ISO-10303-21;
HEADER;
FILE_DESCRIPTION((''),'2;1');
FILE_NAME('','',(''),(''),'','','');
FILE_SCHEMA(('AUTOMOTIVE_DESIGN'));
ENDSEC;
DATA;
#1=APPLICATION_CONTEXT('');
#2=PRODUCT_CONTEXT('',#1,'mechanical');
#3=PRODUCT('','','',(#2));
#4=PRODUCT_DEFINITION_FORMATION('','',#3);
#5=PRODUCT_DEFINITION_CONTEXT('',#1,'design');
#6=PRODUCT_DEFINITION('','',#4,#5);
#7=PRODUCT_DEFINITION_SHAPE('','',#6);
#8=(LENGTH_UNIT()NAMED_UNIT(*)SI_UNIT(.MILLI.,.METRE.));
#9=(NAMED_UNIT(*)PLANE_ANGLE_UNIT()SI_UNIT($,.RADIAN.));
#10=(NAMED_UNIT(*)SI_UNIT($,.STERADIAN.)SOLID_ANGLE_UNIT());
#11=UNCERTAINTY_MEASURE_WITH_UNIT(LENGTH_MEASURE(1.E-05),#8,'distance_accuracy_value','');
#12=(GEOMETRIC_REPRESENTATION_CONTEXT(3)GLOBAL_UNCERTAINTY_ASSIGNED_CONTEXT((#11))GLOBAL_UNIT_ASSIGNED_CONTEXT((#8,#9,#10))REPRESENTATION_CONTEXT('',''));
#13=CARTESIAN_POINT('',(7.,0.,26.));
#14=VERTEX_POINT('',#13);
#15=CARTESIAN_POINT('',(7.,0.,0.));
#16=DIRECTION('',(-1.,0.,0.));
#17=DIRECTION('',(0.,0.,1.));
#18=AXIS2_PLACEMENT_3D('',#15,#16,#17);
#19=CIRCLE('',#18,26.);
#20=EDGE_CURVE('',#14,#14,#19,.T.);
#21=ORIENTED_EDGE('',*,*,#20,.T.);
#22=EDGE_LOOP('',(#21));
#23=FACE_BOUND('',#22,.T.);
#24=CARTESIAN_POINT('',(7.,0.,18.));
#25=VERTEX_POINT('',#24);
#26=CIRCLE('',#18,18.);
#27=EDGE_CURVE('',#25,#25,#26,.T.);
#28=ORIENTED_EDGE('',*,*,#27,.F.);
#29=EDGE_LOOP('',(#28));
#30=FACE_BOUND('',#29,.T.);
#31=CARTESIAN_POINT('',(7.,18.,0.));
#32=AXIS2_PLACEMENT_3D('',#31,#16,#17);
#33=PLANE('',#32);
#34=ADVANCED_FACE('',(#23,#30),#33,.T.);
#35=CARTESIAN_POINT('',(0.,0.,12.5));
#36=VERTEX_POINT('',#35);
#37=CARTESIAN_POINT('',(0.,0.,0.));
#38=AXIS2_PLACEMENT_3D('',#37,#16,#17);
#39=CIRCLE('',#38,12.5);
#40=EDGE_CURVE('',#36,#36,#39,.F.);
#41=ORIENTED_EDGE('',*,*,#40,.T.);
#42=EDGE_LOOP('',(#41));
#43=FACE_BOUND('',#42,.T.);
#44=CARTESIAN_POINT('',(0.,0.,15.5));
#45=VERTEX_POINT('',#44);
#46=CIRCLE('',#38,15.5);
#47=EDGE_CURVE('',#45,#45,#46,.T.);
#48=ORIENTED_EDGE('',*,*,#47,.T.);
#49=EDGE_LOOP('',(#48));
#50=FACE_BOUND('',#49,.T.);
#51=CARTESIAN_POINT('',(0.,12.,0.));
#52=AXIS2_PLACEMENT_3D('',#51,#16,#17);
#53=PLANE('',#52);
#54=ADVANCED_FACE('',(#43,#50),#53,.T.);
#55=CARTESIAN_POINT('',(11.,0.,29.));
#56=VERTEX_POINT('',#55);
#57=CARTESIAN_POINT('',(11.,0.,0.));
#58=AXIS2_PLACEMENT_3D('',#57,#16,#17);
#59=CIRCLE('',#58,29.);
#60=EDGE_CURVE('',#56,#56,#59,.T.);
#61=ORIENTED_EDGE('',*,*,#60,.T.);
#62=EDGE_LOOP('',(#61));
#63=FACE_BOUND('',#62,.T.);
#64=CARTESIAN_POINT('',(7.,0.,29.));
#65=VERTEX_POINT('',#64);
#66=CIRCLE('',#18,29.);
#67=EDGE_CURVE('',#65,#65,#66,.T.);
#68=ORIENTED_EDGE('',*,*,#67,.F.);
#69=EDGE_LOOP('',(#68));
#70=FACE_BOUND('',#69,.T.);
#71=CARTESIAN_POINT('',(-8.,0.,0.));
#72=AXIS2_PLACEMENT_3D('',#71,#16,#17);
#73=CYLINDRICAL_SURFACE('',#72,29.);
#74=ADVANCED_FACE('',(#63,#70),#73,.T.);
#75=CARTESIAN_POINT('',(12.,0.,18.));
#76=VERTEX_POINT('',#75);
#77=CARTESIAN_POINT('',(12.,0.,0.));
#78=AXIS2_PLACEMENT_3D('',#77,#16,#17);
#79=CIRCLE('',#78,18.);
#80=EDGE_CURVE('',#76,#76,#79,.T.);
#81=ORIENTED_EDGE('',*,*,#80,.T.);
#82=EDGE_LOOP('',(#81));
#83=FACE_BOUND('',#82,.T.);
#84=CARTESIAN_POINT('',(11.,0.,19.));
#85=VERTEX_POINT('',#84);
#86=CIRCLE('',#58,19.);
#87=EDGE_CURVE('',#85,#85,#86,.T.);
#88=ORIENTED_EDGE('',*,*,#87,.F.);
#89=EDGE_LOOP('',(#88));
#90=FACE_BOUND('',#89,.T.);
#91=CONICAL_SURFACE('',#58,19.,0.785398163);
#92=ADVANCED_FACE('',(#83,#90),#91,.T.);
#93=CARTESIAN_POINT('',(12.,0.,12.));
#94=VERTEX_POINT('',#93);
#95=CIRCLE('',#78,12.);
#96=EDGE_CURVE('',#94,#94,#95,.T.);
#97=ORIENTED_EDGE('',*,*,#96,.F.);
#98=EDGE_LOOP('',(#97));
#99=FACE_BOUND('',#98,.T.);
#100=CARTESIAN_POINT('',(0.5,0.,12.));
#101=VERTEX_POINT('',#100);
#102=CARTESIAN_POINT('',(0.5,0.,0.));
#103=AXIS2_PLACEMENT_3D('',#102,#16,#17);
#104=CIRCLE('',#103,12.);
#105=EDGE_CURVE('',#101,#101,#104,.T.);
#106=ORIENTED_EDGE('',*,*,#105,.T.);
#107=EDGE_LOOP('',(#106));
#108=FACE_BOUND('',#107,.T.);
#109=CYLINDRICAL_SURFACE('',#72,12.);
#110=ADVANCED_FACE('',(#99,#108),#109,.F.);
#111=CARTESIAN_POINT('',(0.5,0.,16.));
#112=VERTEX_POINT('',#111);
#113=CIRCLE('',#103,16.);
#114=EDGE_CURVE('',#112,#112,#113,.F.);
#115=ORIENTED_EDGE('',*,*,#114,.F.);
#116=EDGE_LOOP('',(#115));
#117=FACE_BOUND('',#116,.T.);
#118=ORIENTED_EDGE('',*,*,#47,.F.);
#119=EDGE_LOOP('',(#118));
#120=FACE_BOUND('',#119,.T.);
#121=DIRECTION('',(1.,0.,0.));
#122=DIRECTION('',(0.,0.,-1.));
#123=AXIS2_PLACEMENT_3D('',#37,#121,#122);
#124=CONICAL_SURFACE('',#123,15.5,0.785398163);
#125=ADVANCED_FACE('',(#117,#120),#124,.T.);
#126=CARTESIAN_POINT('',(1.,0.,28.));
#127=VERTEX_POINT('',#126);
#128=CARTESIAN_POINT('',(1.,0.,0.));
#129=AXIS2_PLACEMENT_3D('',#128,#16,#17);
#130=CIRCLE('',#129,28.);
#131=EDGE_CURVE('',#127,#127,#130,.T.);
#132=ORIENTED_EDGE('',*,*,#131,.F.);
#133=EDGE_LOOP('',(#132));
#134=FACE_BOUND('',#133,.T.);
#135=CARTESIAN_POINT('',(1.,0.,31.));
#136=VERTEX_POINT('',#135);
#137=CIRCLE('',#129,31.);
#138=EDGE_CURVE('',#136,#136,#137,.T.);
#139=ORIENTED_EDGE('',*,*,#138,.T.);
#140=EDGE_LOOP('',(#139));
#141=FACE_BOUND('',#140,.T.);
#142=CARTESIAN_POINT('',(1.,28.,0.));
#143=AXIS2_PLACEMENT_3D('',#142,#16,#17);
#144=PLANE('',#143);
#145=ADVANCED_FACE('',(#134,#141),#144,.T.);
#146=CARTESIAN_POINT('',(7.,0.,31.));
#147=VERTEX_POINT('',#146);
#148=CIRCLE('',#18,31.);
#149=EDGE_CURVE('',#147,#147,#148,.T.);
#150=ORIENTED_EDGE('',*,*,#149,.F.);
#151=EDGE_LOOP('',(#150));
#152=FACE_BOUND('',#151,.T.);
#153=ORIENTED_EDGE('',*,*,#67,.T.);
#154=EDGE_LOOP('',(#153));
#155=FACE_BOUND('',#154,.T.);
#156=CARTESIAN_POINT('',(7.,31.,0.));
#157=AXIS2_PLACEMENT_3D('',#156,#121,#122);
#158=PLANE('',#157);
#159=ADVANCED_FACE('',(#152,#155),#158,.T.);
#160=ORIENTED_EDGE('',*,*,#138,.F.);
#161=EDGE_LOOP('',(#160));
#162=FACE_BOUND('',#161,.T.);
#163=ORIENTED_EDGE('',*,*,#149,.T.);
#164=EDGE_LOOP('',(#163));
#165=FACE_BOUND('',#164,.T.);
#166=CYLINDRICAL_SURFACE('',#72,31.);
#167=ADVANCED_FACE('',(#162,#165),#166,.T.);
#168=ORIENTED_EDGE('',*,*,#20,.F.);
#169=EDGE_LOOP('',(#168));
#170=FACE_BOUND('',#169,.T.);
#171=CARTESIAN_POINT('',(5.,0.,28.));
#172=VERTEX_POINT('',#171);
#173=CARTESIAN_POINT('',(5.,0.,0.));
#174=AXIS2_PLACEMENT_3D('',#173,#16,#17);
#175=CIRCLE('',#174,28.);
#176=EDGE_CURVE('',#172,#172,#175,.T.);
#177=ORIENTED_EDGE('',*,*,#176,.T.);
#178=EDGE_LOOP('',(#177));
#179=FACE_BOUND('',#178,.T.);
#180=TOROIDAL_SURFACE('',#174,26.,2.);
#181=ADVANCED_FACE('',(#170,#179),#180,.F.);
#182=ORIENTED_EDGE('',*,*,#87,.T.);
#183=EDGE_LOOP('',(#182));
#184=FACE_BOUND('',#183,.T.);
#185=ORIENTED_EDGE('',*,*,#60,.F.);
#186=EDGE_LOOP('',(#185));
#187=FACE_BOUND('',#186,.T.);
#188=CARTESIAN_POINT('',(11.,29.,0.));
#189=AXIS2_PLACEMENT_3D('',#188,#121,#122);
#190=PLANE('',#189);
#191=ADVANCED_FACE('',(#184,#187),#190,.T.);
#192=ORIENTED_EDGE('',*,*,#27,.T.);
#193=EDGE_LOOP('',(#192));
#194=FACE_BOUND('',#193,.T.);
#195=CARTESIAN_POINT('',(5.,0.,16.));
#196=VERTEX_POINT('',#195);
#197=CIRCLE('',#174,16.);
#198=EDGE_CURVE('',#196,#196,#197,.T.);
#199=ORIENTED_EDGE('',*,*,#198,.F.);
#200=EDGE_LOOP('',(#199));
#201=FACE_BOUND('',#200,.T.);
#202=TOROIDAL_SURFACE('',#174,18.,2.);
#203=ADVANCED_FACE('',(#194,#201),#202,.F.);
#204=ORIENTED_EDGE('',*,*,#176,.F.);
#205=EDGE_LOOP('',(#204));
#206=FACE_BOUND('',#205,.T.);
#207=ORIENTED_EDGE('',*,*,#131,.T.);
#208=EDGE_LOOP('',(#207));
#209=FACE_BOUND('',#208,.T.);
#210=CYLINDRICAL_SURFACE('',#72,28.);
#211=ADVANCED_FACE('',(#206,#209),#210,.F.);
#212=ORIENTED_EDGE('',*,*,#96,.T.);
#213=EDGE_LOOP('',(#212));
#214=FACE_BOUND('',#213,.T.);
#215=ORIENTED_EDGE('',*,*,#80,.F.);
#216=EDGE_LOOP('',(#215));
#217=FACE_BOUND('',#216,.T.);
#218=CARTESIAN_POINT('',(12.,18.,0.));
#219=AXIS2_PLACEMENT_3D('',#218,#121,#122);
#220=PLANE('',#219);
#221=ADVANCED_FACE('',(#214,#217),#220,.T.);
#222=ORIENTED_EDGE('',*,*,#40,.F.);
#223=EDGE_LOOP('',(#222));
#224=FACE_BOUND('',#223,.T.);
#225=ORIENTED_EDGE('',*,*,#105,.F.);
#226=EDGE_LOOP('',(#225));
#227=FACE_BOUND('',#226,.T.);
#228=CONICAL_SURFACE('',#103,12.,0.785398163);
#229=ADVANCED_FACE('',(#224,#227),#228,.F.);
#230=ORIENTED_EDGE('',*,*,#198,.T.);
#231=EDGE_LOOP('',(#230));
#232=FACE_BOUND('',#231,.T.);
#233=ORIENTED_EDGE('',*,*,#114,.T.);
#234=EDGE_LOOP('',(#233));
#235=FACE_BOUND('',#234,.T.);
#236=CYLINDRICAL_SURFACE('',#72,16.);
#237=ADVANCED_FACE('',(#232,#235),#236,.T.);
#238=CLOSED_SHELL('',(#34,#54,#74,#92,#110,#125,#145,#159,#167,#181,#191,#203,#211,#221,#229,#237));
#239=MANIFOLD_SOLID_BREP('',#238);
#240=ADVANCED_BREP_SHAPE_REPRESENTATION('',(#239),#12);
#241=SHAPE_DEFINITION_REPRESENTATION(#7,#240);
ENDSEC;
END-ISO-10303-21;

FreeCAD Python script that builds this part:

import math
import FreeCAD as App
import Part
import Sketcher

V = App.Vector


def edges_at(feature, points):
    """Names of the edges that pass closest to the given points."""
    edges = feature.Shape.Edges
    near = lambda p: min(range(len(edges)), key=lambda i: edges[i].distToShape(Part.Vertex(*p))[0])
    return sorted({f"Edge{near(p) + 1}" for p in points})

doc = App.newDocument("Part")
body = doc.addObject("PartDesign::Body", "Body")

# Sketch on XY plane
sketch1 = doc.addObject("Sketcher::SketchObject", "Sketch")
body.addObject(sketch1)
sketch1.AttachmentSupport = (doc.XY_Plane, [""])
sketch1.MapMode = "FlatFace"
sketch1.addGeometry([
    Part.LineSegment(V(0, 16, 0), V(0, 12, 0)),  # 0
    Part.LineSegment(V(0, 12, 0), V(12, 12, 0)),  # 1
    Part.LineSegment(V(12, 12, 0), V(12, 18, 0)),  # 2
    Part.LineSegment(V(12, 18, 0), V(11, 19, 0)),  # 3
    Part.LineSegment(V(11, 19, 0), V(11, 29, 0)),  # 4
    Part.LineSegment(V(11, 29, 0), V(7, 29, 0)),  # 5
    Part.LineSegment(V(7, 29, 0), V(7, 31, 0)),  # 6
    Part.LineSegment(V(7, 31, 0), V(1, 31, 0)),  # 7
    Part.LineSegment(V(1, 31, 0), V(1, 28, 0)),  # 8
    Part.LineSegment(V(1, 28, 0), V(5, 28, 0)),  # 9
    Part.ArcOfCircle(Part.Circle(V(5, 26, 0), V(0, 0, 1), 2), math.radians(0), math.radians(90)),  # 10
    Part.LineSegment(V(7, 26, 0), V(7, 18, 0)),  # 11
    Part.ArcOfCircle(Part.Circle(V(5, 18, 0), V(0, 0, 1), 2), math.radians(-90), math.radians(0)),  # 12
    Part.LineSegment(V(5, 16, 0), V(0, 16, 0)),  # 13
], False)
sketch1.addConstraint([
    Sketcher.Constraint("Coincident", 0, 2, 1, 1),
    Sketcher.Constraint("Coincident", 1, 2, 2, 1),
    Sketcher.Constraint("Coincident", 2, 2, 3, 1),
    Sketcher.Constraint("Coincident", 3, 2, 4, 1),
    Sketcher.Constraint("Coincident", 4, 2, 5, 1),
    Sketcher.Constraint("Coincident", 5, 2, 6, 1),
    Sketcher.Constraint("Coincident", 6, 2, 7, 1),
    Sketcher.Constraint("Coincident", 7, 2, 8, 1),
    Sketcher.Constraint("Coincident", 8, 2, 9, 1),
    Sketcher.Constraint("Tangent", 9, 2, 10, 2),
    Sketcher.Constraint("Tangent", 10, 1, 11, 1),
    Sketcher.Constraint("Tangent", 11, 2, 12, 2),
    Sketcher.Constraint("Tangent", 12, 1, 13, 1),
    Sketcher.Constraint("Coincident", 13, 2, 0, 1),
    Sketcher.Constraint("Vertical", 0),
    Sketcher.Constraint("Horizontal", 1),
    Sketcher.Constraint("Vertical", 2),
    Sketcher.Constraint("Vertical", 4),
    Sketcher.Constraint("Horizontal", 5),
    Sketcher.Constraint("Vertical", 6),
    Sketcher.Constraint("Horizontal", 7),
    Sketcher.Constraint("Vertical", 8),
    Sketcher.Constraint("Horizontal", 9),
    Sketcher.Constraint("Vertical", 11),
    Sketcher.Constraint("Horizontal", 13),
    Sketcher.Constraint("Equal", 10, 12),
    Sketcher.Constraint("PointOnObject", 0, 2, -2),
    Sketcher.Constraint("Horizontal", 12, 3, 2, 2),
    Sketcher.Constraint("Vertical", 6, 2, 10, 1),
    Sketcher.Constraint("Equal", 5, 9),
    Sketcher.Constraint("Equal", 9, 0),
    Sketcher.Constraint("Radius", 10, 2.0),
    Sketcher.Constraint("DistanceX", 1, 1, 1, 2, 12.0),
    Sketcher.Constraint("DistanceX", 5, 2, 5, 1, 4.0),
    Sketcher.Constraint("DistanceX", 13, 2, 13, 1, 5.0),
    Sketcher.Constraint("DistanceY", 4, 1, 4, 2, 10.0),
    Sketcher.Constraint("DistanceY", 6, 1, 6, 2, 2.0),
    Sketcher.Constraint("DistanceY", 8, 2, 8, 1, 3.0),
    Sketcher.Constraint("DistanceY", 11, 2, 11, 1, 8.0),
    Sketcher.Constraint("DistanceY", -1, 1, 10, 3, 26.0),
])
revolution = doc.addObject("PartDesign::Revolution", "Revolution")
body.addObject(revolution)
revolution.Profile = sketch1
revolution.ReferenceAxis = (sketch1, ["H_Axis"])
revolution.Angle = 360
doc.recompute()

chamfer = doc.addObject("PartDesign::Chamfer", "Chamfer")
body.addObject(chamfer)
chamfer.Base = (revolution, edges_at(revolution, [(0, 0, -12), (0, 0, -16)]))
chamfer.Size = 0.5

doc.recompute()
